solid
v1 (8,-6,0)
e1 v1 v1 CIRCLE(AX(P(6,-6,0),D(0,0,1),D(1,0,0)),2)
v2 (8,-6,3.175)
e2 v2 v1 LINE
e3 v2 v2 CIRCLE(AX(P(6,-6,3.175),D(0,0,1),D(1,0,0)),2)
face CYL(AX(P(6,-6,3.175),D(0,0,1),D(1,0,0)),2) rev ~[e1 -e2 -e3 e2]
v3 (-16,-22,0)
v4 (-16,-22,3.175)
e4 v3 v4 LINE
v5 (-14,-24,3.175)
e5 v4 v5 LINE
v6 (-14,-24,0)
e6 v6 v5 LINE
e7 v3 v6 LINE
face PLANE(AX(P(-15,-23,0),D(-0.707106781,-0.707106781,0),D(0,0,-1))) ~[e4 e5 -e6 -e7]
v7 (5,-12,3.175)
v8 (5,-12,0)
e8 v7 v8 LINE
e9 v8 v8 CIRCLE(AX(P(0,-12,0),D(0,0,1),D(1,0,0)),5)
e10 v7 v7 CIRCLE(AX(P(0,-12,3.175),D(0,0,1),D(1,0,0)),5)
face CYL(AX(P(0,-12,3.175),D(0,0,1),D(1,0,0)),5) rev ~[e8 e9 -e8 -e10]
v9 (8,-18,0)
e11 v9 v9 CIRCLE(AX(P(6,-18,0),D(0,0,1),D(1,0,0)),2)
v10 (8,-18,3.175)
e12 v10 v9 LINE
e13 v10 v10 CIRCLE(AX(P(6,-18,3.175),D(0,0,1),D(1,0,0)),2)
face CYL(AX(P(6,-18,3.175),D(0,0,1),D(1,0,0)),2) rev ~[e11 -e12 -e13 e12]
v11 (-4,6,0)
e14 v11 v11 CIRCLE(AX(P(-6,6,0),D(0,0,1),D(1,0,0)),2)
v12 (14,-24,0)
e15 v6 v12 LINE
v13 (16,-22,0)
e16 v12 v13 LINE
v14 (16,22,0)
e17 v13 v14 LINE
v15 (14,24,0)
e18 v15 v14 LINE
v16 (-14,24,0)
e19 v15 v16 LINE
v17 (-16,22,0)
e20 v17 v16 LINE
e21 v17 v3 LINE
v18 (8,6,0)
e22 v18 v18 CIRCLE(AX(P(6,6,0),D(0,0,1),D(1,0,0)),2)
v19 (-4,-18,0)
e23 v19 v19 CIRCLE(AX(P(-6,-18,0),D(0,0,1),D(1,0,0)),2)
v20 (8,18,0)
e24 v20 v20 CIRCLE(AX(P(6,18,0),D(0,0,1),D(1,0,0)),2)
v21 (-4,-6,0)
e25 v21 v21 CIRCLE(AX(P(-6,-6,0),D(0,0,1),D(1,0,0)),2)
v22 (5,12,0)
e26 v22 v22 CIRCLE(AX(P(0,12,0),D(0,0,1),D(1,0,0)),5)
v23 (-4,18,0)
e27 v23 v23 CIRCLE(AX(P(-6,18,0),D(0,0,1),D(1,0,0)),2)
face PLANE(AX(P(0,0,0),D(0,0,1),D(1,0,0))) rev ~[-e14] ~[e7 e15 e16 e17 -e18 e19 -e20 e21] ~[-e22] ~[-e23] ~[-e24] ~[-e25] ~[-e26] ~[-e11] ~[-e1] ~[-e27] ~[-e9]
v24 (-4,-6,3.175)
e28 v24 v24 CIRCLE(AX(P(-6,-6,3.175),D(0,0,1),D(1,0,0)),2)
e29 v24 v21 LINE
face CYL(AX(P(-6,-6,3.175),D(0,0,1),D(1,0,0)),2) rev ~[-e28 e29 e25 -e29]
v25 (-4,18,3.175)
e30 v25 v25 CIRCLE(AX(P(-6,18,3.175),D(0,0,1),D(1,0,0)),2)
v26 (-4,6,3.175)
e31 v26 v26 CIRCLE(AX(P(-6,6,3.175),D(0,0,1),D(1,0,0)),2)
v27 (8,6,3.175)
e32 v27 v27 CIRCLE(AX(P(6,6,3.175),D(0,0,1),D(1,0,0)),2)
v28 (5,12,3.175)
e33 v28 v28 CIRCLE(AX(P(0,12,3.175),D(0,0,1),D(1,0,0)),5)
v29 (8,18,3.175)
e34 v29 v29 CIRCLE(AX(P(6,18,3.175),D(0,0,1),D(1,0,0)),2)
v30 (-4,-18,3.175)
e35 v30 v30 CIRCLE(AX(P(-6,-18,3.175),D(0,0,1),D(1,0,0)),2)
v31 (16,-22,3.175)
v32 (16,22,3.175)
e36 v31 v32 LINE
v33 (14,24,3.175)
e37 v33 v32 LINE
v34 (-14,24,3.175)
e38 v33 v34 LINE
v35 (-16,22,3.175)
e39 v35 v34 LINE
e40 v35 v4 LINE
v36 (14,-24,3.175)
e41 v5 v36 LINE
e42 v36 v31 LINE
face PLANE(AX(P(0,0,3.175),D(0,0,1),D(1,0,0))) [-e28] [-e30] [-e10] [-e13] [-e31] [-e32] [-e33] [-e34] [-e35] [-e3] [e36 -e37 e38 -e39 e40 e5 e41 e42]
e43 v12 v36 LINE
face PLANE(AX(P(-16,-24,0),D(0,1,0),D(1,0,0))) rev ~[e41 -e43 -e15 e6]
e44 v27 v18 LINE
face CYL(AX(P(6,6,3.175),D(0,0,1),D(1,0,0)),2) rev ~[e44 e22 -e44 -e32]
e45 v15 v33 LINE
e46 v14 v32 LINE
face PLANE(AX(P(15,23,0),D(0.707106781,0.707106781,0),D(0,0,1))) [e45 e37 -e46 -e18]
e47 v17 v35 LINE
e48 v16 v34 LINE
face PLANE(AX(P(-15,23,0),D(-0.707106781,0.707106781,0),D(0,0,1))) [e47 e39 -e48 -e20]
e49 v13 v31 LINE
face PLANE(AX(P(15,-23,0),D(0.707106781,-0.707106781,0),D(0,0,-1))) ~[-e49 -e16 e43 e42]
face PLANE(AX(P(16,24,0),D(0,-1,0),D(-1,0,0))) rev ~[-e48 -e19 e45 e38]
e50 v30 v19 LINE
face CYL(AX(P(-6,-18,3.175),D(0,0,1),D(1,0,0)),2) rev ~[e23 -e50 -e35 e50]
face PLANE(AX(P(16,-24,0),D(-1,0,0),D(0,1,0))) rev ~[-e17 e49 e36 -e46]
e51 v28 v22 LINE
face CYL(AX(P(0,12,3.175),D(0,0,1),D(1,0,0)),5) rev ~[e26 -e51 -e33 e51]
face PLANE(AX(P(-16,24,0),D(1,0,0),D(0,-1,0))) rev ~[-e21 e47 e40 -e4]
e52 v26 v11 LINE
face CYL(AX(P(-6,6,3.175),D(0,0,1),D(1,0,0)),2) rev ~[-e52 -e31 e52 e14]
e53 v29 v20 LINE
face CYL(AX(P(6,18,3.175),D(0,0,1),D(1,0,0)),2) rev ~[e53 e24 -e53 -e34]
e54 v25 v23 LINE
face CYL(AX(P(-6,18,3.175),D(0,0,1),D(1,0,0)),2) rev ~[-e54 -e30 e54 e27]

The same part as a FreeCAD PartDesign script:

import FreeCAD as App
import Part
import Sketcher
from FreeCAD import Vector
Q = App.Units.Quantity


def edges_at(feature, points):
    """Names of the edges that pass closest to the given points."""
    edges = feature.Shape.Edges
    near = lambda p: min(range(len(edges)), key=lambda i: edges[i].distToShape(Part.Vertex(*p))[0])
    return sorted({f"Edge{near(p) + 1}" for p in points})

doc = App.newDocument("Part")
params = doc.addObject("Spreadsheet::Sheet", "Params")
for row, (alias, value) in enumerate([
    ("sketch1_width", "32 mm"),
    ("sketch1_height", "48 mm"),
    ("pad1_length", "3.175 mm"),
    ("sketch2_diameter", "10 mm"),
    ("sketch2_diameter2", "4 mm"),
    ("chamfer_size", "2 mm"),
], start=1):
    params.set(f"A{row}", alias)
    params.set(f"B{row}", "=" + value)
    params.setAlias(f"B{row}", alias)

body = doc.addObject("PartDesign::Body", "Body")

# Sketch on XY plane
sketch1 = body.newObject("Sketcher::SketchObject", "Sketch")
sketch1.AttachmentSupport = (doc.getObject("XY_Plane"), [""])
sketch1.MapMode = "FlatFace"
sketch1.addGeometry([
    Part.LineSegment(Vector(-16, 24, 0), Vector(-16, -24, 0)),
    Part.LineSegment(Vector(-16, -24, 0), Vector(16, -24, 0)),
    Part.LineSegment(Vector(16, -24, 0), Vector(16, 24, 0)),
    Part.LineSegment(Vector(16, 24, 0), Vector(-16, 24, 0)),
], False)
sketch1.addConstraint([
    Sketcher.Constraint("Coincident", 0, 2, 1, 1),
    Sketcher.Constraint("Coincident", 1, 2, 2, 1),
    Sketcher.Constraint("Coincident", 2, 2, 3, 1),
    Sketcher.Constraint("Coincident", 3, 2, 0, 1),
    Sketcher.Constraint("Vertical", 0),
    Sketcher.Constraint("Horizontal", 1),
    Sketcher.Constraint("Vertical", 2),
    Sketcher.Constraint("Horizontal", 3),
    Sketcher.Constraint("Symmetric", 0, 2, 2, 2, -1, 1),
    Sketcher.Constraint("DistanceX", 1, 1, 1, 2, Q("32 mm")),
    Sketcher.Constraint("DistanceY", 0, 2, 0, 1, Q("48 mm")),
])
sketch1.setExpression("Constraints[9]", "Params.sketch1_width")
sketch1.setExpression("Constraints[10]", "Params.sketch1_height")
pad1 = body.newObject("PartDesign::Pad", "Pad")
pad1.Profile = sketch1
pad1.setExpression("Length", "Params.pad1_length")

# Sketch on XY plane
sketch2 = body.newObject("Sketcher::SketchObject", "Sketch001")
sketch2.AttachmentSupport = (doc.getObject("XY_Plane"), [""])
sketch2.MapMode = "FlatFace"
sketch2.AttachmentOffset = App.Placement(Vector(0, 0, 3.175), App.Rotation())
sketch2.addGeometry([
    Part.Circle(Vector(0, -12, 0), Vector(0, 0, 1), 5),  # 0
    Part.Circle(Vector(-6, -6, 0), Vector(0, 0, 1), 2),  # 1
    Part.Circle(Vector(-6, -18, 0), Vector(0, 0, 1), 2),  # 2
    Part.Circle(Vector(6, -18, 0), Vector(0, 0, 1), 2),  # 3
    Part.Circle(Vector(6, -6, 0), Vector(0, 0, 1), 2),  # 4
    Part.Circle(Vector(0, 12, 0), Vector(0, 0, 1), 5),  # 5
    Part.Circle(Vector(-6, 6, 0), Vector(0, 0, 1), 2),  # 6
    Part.Circle(Vector(-6, 18, 0), Vector(0, 0, 1), 2),  # 7
    Part.Circle(Vector(6, 18, 0), Vector(0, 0, 1), 2),  # 8
    Part.Circle(Vector(6, 6, 0), Vector(0, 0, 1), 2),  # 9
], False)
sketch2.addConstraint([
    Sketcher.Constraint("Equal", 1, 2),
    Sketcher.Constraint("Equal", 2, 3),
    Sketcher.Constraint("Equal", 3, 4),
    Sketcher.Constraint("Equal", 0, 5),
    Sketcher.Constraint("Equal", 4, 6),
    Sketcher.Constraint("Equal", 6, 7),
    Sketcher.Constraint("Equal", 7, 8),
    Sketcher.Constraint("Equal", 8, 9),
    Sketcher.Constraint("Symmetric", 0, 3, 5, 3, -1, 1),
    Sketcher.Constraint("Symmetric", 4, 3, 6, 3, -1, 1),
    Sketcher.Constraint("Symmetric", 3, 3, 7, 3, -1, 1),
    Sketcher.Constraint("Symmetric", 2, 3, 8, 3, -1, 1),
    Sketcher.Constraint("Symmetric", 1, 3, 9, 3, -1, 1),
    Sketcher.Constraint("Symmetric", 2, 3, 3, 3, -2),
    Sketcher.Constraint("Symmetric", 1, 3, 4, 3, -2),
    Sketcher.Constraint("PointOnObject", 0, 3, -2),
    Sketcher.Constraint("Vertical", 1, 3, 2, 3),
    Sketcher.Constraint("Diameter", 0, Q("10 mm")),
    Sketcher.Constraint("Diameter", 1, Q("4 mm")),
    Sketcher.Constraint("DistanceY", 0, 3, -1, 1, Q("12 mm")),
    Sketcher.Constraint("DistanceX", 1, 3, -1, 1, Q("6 mm")),
    Sketcher.Constraint("DistanceY", 1, 3, -1, 1, Q("6 mm")),
    Sketcher.Constraint("DistanceY", 2, 3, 0, 3, Q("6 mm")),
])
sketch2.setExpression("Constraints[17]", "Params.sketch2_diameter")
sketch2.setExpression("Constraints[18]", "Params.sketch2_diameter2")
pocket1 = body.newObject("PartDesign::Pocket", "Pocket")
pocket1.Profile = sketch2
pocket1.Type = "ThroughAll"
doc.recompute()

chamfer = body.newObject("PartDesign::Chamfer", "Chamfer")
chamfer.Base = (pocket1, edges_at(pocket1, [
    (16, 24, 1.587),
    (-16, 24, 1.587),
    (16, -24, 1.587),
    (-16, -24, 1.587),
]))
chamfer.setExpression("Size", "Params.chamfer_size")

doc.recompute()
